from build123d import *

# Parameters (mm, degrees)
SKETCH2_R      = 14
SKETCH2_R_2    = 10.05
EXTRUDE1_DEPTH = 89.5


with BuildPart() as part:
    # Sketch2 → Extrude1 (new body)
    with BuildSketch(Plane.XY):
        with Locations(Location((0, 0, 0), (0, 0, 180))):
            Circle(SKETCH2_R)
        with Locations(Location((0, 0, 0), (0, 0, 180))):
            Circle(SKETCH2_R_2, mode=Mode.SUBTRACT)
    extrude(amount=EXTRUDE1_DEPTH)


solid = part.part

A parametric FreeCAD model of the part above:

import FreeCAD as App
import Part
import Sketcher

doc = App.newDocument("Part")
body = doc.addObject("PartDesign::Body", "Body")

sketch1 = body.newObject("Sketcher::SketchObject", "Sketch")
sketch1.AttachmentSupport = (doc.getObject("XY_Plane"), [""])
sketch1.MapMode = "FlatFace"
sketch1.addGeometry(Part.Circle(App.Vector(0, 0, 0), App.Vector(0, 0, 1), 14), False)
sketch1.addGeometry(Part.Circle(App.Vector(0, 0, 0), App.Vector(0, 0, 1), 10), False)
sketch1.addConstraint(Sketcher.Constraint("Coincident", 0, 3, -1, 1))
sketch1.addConstraint(Sketcher.Constraint("Coincident", 1, 3, -1, 1))
sketch1.addConstraint(Sketcher.Constraint("Diameter", 0, 28.0))
sketch1.addConstraint(Sketcher.Constraint("Diameter", 1, 20.1))
pad1 = body.newObject("PartDesign::Pad", "Pad")
pad1.Profile = sketch1
pad1.Length = 89.5

doc.recompute()
